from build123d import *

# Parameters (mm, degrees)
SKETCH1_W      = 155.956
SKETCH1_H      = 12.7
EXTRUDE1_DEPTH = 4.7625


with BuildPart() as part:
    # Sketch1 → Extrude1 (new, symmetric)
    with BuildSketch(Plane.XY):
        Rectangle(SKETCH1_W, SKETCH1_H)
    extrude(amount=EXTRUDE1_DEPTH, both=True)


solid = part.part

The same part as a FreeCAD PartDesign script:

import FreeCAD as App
import Part
import Sketcher
Q = App.Units.Quantity

doc = App.newDocument("Part")
body = doc.addObject("PartDesign::Body", "Body")

sketch1 = doc.addObject("Sketcher::SketchObject", "Sketch")
body.addObject(sketch1)
sketch1.AttachmentSupport = (doc.XY_Plane, [""])
sketch1.MapMode = "FlatFace"
sketch1.addGeometry([
    Part.LineSegment(App.Vector(-78, 6, 0), App.Vector(-78, -6, 0)),
    Part.LineSegment(App.Vector(-78, -6, 0), App.Vector(78, -6, 0)),
    Part.LineSegment(App.Vector(78, -6, 0), App.Vector(78, 6, 0)),
    Part.LineSegment(App.Vector(78, 6, 0), App.Vector(-78, 6, 0)),
], False)
sketch1.addConstraint([
    Sketcher.Constraint("Coincident", 0, 2, 1, 1),
    Sketcher.Constraint("Coincident", 1, 2, 2, 1),
    Sketcher.Constraint("Coincident", 2, 2, 3, 1),
    Sketcher.Constraint("Coincident", 3, 2, 0, 1),
    Sketcher.Constraint("Vertical", 0),
    Sketcher.Constraint("Horizontal", 1),
    Sketcher.Constraint("Vertical", 2),
    Sketcher.Constraint("Horizontal", 3),
    Sketcher.Constraint("Symmetric", 0, 2, 2, 2, -1, 1),
    Sketcher.Constraint("DistanceY", 0, 2, 0, 1, Q("0.5 in")),
    Sketcher.Constraint("DistanceX", 1, 1, 1, 2, Q("6.14 in")),
])
pad1 = doc.addObject("PartDesign::Pad", "Pad")
body.addObject(pad1)
pad1.Profile = sketch1
pad1.Length = Q("0.375 in")
pad1.Midplane = True

doc.recompute()
